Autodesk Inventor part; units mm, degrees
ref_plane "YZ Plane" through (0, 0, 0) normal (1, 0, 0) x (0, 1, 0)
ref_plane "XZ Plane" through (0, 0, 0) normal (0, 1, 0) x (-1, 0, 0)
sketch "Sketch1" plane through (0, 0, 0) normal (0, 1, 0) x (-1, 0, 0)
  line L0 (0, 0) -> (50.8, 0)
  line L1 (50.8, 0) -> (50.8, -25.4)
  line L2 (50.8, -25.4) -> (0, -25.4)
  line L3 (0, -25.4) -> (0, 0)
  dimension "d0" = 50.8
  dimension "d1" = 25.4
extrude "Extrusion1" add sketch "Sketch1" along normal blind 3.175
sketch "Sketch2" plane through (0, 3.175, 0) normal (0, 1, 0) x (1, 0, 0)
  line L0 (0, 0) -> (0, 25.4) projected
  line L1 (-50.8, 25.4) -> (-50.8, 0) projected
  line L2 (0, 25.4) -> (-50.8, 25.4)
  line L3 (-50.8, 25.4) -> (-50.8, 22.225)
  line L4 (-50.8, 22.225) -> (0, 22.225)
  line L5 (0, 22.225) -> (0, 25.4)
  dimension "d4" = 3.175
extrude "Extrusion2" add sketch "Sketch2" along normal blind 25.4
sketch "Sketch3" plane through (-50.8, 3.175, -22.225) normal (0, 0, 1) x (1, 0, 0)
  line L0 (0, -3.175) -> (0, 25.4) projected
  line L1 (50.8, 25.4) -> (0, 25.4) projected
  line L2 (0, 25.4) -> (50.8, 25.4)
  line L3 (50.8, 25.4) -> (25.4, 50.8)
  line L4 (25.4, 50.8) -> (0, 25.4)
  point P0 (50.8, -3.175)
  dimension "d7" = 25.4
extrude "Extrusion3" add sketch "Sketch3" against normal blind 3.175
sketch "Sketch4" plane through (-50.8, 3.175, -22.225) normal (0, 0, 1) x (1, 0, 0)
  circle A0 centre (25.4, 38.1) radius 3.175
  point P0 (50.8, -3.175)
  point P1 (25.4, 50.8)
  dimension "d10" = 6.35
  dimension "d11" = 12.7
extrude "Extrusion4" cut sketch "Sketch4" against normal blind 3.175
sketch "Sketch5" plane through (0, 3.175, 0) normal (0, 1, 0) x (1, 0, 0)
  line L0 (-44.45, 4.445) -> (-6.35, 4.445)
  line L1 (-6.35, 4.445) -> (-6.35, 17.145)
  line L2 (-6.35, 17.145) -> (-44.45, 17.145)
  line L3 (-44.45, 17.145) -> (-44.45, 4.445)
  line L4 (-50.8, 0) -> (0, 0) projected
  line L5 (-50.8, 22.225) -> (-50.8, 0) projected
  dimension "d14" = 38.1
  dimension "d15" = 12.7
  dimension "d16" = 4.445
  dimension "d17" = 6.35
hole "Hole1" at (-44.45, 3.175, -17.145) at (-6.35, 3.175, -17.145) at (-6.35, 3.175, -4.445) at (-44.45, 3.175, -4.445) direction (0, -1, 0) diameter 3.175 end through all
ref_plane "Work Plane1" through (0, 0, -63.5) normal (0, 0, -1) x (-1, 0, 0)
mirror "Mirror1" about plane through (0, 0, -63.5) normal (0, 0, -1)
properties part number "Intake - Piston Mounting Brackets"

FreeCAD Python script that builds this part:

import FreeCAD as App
import Part
import Sketcher
Q = App.Units.Quantity

doc = App.newDocument("Part")
params = doc.addObject("Spreadsheet::Sheet", "Params")
for row, (alias, value) in enumerate([
    ("sketch1_width", "2 in"),
    ("sketch1_height", "1 in"),
    ("pad1_length", "0.125 in"),
    ("sketch2_width", "2 in"),
    ("sketch2_height", "0.125 in"),
    ("pad2_length", "1 in"),
    ("pad3_length", "0.125 in"),
    ("sketch4_diameter", "0.25 in"),
    ("pocket1_length", "0.125 in"),
    ("sketch5_diameter", "0.125 in"),
    ("hole_diameter", "0.125 in"),
], start=1):
    params.set(f"A{row}", alias)
    params.set(f"B{row}", "=" + value)
    params.setAlias(f"B{row}", alias)

body = doc.addObject("PartDesign::Body", "Body")
body.AllowCompound = True

sketch1 = body.newObject("Sketcher::SketchObject", "Sketch")
sketch1.AttachmentSupport = (doc.getObject("XZ_Plane"), [""])
sketch1.MapMode = "FlatFace"
sketch1.addGeometry([
    Part.LineSegment(App.Vector(-50.8, 0, 0), App.Vector(0, 0, 0)),
    Part.LineSegment(App.Vector(0, 0, 0), App.Vector(0, -25.4, 0)),
    Part.LineSegment(App.Vector(0, -25.4, 0), App.Vector(-50.8, -25.4, 0)),
    Part.LineSegment(App.Vector(-50.8, -25.4, 0), App.Vector(-50.8, 0, 0)),
], False)
sketch1.addConstraint([
    Sketcher.Constraint("Coincident", 0, 2, 1, 1),
    Sketcher.Constraint("Coincident", 1, 2, 2, 1),
    Sketcher.Constraint("Coincident", 2, 2, 3, 1),
    Sketcher.Constraint("Coincident", 3, 2, 0, 1),
    Sketcher.Constraint("Horizontal", 0),
    Sketcher.Constraint("Vertical", 1),
    Sketcher.Constraint("Horizontal", 2),
    Sketcher.Constraint("Vertical", 3),
    Sketcher.Constraint("Coincident", 0, 2, -1, 1),
    Sketcher.Constraint("DistanceX", 0, 1, 0, 2, Q("2 in")),
    Sketcher.Constraint("DistanceY", 1, 2, 1, 1, Q("1 in")),
])
sketch1.setExpression("Constraints[9]", "Params.sketch1_width")
sketch1.setExpression("Constraints[10]", "Params.sketch1_height")
pad1 = body.newObject("PartDesign::Pad", "Pad")
pad1.Profile = sketch1
pad1.setExpression("Length", "Params.pad1_length")
pad1.Reversed = True

sketch2 = body.newObject("Sketcher::SketchObject", "Sketch001")
sketch2.AttachmentSupport = (doc.getObject("XZ_Plane"), [""])
sketch2.MapMode = "FlatFace"
sketch2.AttachmentOffset = App.Placement(App.Vector(0, 0, -0.125 * 25.4), App.Rotation())
sketch2.addGeometry([
    Part.LineSegment(App.Vector(-50.8, -22.225, 0), App.Vector(0, -22.225, 0)),
    Part.LineSegment(App.Vector(0, -22.225, 0), App.Vector(0, -25.4, 0)),
    Part.LineSegment(App.Vector(0, -25.4, 0), App.Vector(-50.8, -25.4, 0)),
    Part.LineSegment(App.Vector(-50.8, -25.4, 0), App.Vector(-50.8, -22.225, 0)),
], False)
sketch2.addConstraint([
    Sketcher.Constraint("Coincident", 0, 2, 1, 1),
    Sketcher.Constraint("Coincident", 1, 2, 2, 1),
    Sketcher.Constraint("Coincident", 2, 2, 3, 1),
    Sketcher.Constraint("Coincident", 3, 2, 0, 1),
    Sketcher.Constraint("Horizontal", 0),
    Sketcher.Constraint("Vertical", 1),
    Sketcher.Constraint("Horizontal", 2),
    Sketcher.Constraint("Vertical", 3),
    Sketcher.Constraint("PointOnObject", 0, 2, -2),
    Sketcher.Constraint("DistanceX", 0, 1, 0, 2, Q("2 in")),
    Sketcher.Constraint("DistanceY", 1, 2, 1, 1, Q("0.125 in")),
    Sketcher.Constraint("DistanceY", 1, 2, -1, 1, Q("1 in")),
])
sketch2.setExpression("Constraints[9]", "Params.sketch2_width")
sketch2.setExpression("Constraints[10]", "Params.sketch2_height")
pad2 = body.newObject("PartDesign::Pad", "Pad001")
pad2.Profile = sketch2
pad2.setExpression("Length", "Params.pad2_length")
pad2.Reversed = True

sketch3 = body.newObject("Sketcher::SketchObject", "Sketch002")
sketch3.AttachmentSupport = (doc.getObject("XY_Plane"), [""])
sketch3.MapMode = "FlatFace"
sketch3.AttachmentOffset = App.Placement(App.Vector(0, 0, -0.875 * 25.4), App.Rotation())
sketch3.addGeometry([
    Part.LineSegment(App.Vector(-50.8, 28.575, 0), App.Vector(0, 28.575, 0)),
    Part.LineSegment(App.Vector(0, 28.575, 0), App.Vector(-25.4, 53.975, 0)),
    Part.LineSegment(App.Vector(-25.4, 53.975, 0), App.Vector(-50.8, 28.575, 0)),
], False)
sketch3.addConstraint([
    Sketcher.Constraint("Coincident", 0, 2, 1, 1),
    Sketcher.Constraint("Coincident", 1, 2, 2, 1),
    Sketcher.Constraint("Coincident", 2, 2, 0, 1),
    Sketcher.Constraint("Horizontal", 0),
    Sketcher.Constraint("PointOnObject", 0, 2, -2),
    Sketcher.Constraint("Perpendicular", 1, 2),
    Sketcher.Constraint("Equal", 1, 2),
    Sketcher.Constraint("DistanceX", 1, 2, -1, 1, Q("1 in")),
    Sketcher.Constraint("DistanceY", -1, 1, 0, 2, Q("1.125 in")),
])
pad3 = body.newObject("PartDesign::Pad", "Pad002")
pad3.Profile = sketch3
pad3.setExpression("Length", "Params.pad3_length")
pad3.Reversed = True

sketch4 = body.newObject("Sketcher::SketchObject", "Sketch003")
sketch4.AttachmentSupport = (doc.getObject("XY_Plane"), [""])
sketch4.MapMode = "FlatFace"
sketch4.AttachmentOffset = App.Placement(App.Vector(0, 0, -0.875 * 25.4), App.Rotation())
sketch4.addGeometry(Part.Circle(App.Vector(-25.4, 41.275, 0), App.Vector(0, 0, 1), 3.175), False)
sketch4.addConstraint([
    Sketcher.Constraint("Diameter", 0, Q("0.25 in")),
    Sketcher.Constraint("DistanceX", 0, 3, -1, 1, Q("1 in")),
    Sketcher.Constraint("DistanceY", -1, 1, 0, 3, Q("1.625 in")),
])
sketch4.setExpression("Constraints[0]", "Params.sketch4_diameter")
pocket1 = body.newObject("PartDesign::Pocket", "Pocket")
pocket1.Profile = sketch4
pocket1.setExpression("Length", "Params.pocket1_length")

sketch5 = body.newObject("Sketcher::SketchObject", "Sketch004")
sketch5.AttachmentSupport = (doc.getObject("XZ_Plane"), [""])
sketch5.MapMode = "FlatFace"
sketch5.AttachmentOffset = App.Placement(App.Vector(0, 0, -0.125 * 25.4), App.Rotation())
sketch5.addGeometry([
    Part.Circle(App.Vector(-44.45, -17.145, 0), App.Vector(0, 0, 1), 1.5875),
    Part.Circle(App.Vector(-6.35, -17.145, 0), App.Vector(0, 0, 1), 1.5875),
    Part.Circle(App.Vector(-6.35, -4.445, 0), App.Vector(0, 0, 1), 1.5875),
    Part.Circle(App.Vector(-44.45, -4.445, 0), App.Vector(0, 0, 1), 1.5875),
], False)
sketch5.addConstraint([
    Sketcher.Constraint("Equal", 0, 1),
    Sketcher.Constraint("Equal", 1, 2),
    Sketcher.Constraint("Equal", 2, 3),
    Sketcher.Constraint("Horizontal", 0, 3, 1, 3),
    Sketcher.Constraint("Horizontal", 2, 3, 3, 3),
    Sketcher.Constraint("Vertical", 1, 3, 2, 3),
    Sketcher.Constraint("Vertical", 0, 3, 3, 3),
    Sketcher.Constraint("Diameter", 0, Q("0.125 in")),
    Sketcher.Constraint("DistanceX", 0, 3, 1, 3, Q("1.5 in")),
    Sketcher.Constraint("DistanceY", 1, 3, 2, 3, Q("0.5 in")),
    Sketcher.Constraint("DistanceX", 0, 3, -1, 1, Q("1.75 in")),
    Sketcher.Constraint("DistanceY", 0, 3, -1, 1, Q("0.675 in")),
])
sketch5.setExpression("Constraints[7]", "Params.sketch5_diameter")
doc.recompute()
hole = body.newObject("PartDesign::Hole", "Hole")
hole.Profile = sketch5
hole.ThreadType = "None"
hole.setExpression("Diameter", "Params.hole_diameter")
hole.DepthType = "ThroughAll"
hole.Reversed = True
doc.recompute()

datumplane = body.newObject("PartDesign::Plane", "DatumPlane")
datumplane.AttachmentSupport = (doc.getObject("XY_Plane"), [""])
datumplane.MapMode = "FlatFace"
datumplane.AttachmentOffset = App.Placement(App.Vector(0, 0, -2.5 * 25.4), App.Rotation())
mirrored = body.newObject("PartDesign::Mirrored", "Mirrored")
mirrored.TransformMode = "Transform body"
mirrored.MirrorPlane = (datumplane, [""])
body.Tip = mirrored

doc.recompute()
